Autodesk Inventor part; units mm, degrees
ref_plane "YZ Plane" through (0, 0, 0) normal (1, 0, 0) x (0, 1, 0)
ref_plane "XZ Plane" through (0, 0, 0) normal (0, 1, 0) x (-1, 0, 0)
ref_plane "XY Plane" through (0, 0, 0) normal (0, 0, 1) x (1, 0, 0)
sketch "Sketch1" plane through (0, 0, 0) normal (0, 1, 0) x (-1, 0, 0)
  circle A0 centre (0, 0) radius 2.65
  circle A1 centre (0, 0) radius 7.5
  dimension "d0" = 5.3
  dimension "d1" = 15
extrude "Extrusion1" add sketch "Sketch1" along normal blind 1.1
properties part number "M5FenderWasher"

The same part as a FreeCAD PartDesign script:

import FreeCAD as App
import Part
import Sketcher
from FreeCAD import Vector
Q = App.Units.Quantity

doc = App.newDocument("Part")
body = doc.addObject("PartDesign::Body", "Body")

# Sketch on XZ plane
sketch1 = doc.addObject("Sketcher::SketchObject", "Sketch")
body.addObject(sketch1)
sketch1.AttachmentSupport = (doc.XZ_Plane, [""])
sketch1.MapMode = "FlatFace"
sketch1.addGeometry([
    Part.Circle(Vector(0, 0, 0), Vector(0, 0, 1), 7.5),
    Part.Circle(Vector(0, 0, 0), Vector(0, 0, 1), 2.65),
], False)
sketch1.addConstraint([
    Sketcher.Constraint("Coincident", 0, 3, -1, 1),
    Sketcher.Constraint("Coincident", 1, 3, -1, 1),
    Sketcher.Constraint("Diameter", 0, Q("15 mm")),
    Sketcher.Constraint("Diameter", 1, Q("5.3 mm")),
])
pad1 = doc.addObject("PartDesign::Pad", "Pad")
body.addObject(pad1)
pad1.Profile = sketch1
pad1.Length = 1.1
pad1.Reversed = True

doc.recompute()
